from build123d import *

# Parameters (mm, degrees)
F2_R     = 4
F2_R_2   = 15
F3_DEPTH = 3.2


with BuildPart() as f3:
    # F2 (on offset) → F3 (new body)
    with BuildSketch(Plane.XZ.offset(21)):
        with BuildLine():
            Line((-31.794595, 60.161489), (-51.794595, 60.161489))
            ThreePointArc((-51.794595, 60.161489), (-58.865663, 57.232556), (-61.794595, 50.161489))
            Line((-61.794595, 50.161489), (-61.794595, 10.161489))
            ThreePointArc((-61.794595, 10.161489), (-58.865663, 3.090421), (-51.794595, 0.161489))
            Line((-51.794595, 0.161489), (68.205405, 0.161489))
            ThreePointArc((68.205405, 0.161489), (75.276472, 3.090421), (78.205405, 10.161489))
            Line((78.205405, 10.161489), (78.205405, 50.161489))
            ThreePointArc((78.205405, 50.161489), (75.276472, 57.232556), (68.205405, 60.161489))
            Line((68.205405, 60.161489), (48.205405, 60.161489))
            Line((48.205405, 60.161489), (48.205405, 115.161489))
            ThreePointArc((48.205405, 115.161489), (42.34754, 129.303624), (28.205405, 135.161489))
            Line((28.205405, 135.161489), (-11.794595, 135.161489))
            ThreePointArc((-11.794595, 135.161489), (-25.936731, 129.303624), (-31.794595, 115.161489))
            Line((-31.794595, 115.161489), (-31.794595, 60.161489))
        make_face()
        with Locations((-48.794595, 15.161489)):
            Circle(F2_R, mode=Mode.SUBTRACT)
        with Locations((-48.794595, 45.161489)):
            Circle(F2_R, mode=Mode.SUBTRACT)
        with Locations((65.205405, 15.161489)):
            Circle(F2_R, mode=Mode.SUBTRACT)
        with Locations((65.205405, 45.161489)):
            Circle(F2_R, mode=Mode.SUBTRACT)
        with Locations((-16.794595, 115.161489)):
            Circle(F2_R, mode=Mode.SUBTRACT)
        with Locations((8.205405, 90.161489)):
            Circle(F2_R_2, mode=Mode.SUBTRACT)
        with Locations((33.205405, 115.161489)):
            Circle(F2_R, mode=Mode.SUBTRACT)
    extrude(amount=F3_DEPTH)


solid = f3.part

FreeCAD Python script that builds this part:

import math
import FreeCAD as App
import Part
import Sketcher

V = App.Vector
Q = App.Units.Quantity

doc = App.newDocument("Part")
body = doc.addObject("PartDesign::Body", "Body")

# Sketch on XZ plane
sketch1 = body.newObject("Sketcher::SketchObject", "Sketch")
sketch1.AttachmentSupport = (doc.getObject("XZ_Plane"), [""])
sketch1.MapMode = "FlatFace"
sketch1.AttachmentOffset = App.Placement(V(0, 0, 21), App.Rotation())
sketch1.addGeometry(Part.LineSegment(V(-31.8, 60.2, 0), V(-51.8, 60.2, 0)), False)
sketch1.addGeometry(Part.ArcOfCircle(Part.Circle(V(-51.8, 50.2, 0), V(0, 0, 1), 10), math.radians(90), math.radians(180)), False)
sketch1.addGeometry(Part.LineSegment(V(-61.8, 50.2, 0), V(-61.8, 10.2, 0)), False)
sketch1.addGeometry(Part.ArcOfCircle(Part.Circle(V(-51.8, 10.2, 0), V(0, 0, 1), 10), math.radians(180), math.radians(270)), False)
sketch1.addGeometry(Part.LineSegment(V(-51.8, 0.2, 0), V(68.2, 0.2, 0)), False)
sketch1.addGeometry(Part.ArcOfCircle(Part.Circle(V(68.2, 10.2, 0), V(0, 0, 1), 10), math.radians(-90), math.radians(0)), False)
sketch1.addGeometry(Part.LineSegment(V(78.2, 10.2, 0), V(78.2, 50.2, 0)), False)
sketch1.addGeometry(Part.ArcOfCircle(Part.Circle(V(68.2, 50.2, 0), V(0, 0, 1), 10), math.radians(0), math.radians(90)), False)
sketch1.addGeometry(Part.LineSegment(V(68.2, 60.2, 0), V(48.2, 60.2, 0)), False)
sketch1.addGeometry(Part.LineSegment(V(48.2, 60.2, 0), V(48.2, 115.2, 0)), False)
sketch1.addGeometry(Part.ArcOfCircle(Part.Circle(V(28.2, 115.2, 0), V(0, 0, 1), 20), math.radians(0), math.radians(90)), False)
sketch1.addGeometry(Part.LineSegment(V(28.2, 135.2, 0), V(-11.8, 135.2, 0)), False)
sketch1.addGeometry(Part.ArcOfCircle(Part.Circle(V(-11.8, 115.2, 0), V(0, 0, 1), 20), math.radians(90), math.radians(180)), False)
sketch1.addGeometry(Part.LineSegment(V(-31.8, 115.2, 0), V(-31.8, 60.2, 0)), False)
sketch1.addGeometry(Part.Circle(V(-48.8, 15.2, 0), V(0, 0, 1), 4), False)
sketch1.addGeometry(Part.Circle(V(-48.8, 45.2, 0), V(0, 0, 1), 4), False)
sketch1.addGeometry(Part.Circle(V(65.2, 15.2, 0), V(0, 0, 1), 4), False)
sketch1.addGeometry(Part.Circle(V(65.2, 45.2, 0), V(0, 0, 1), 4), False)
sketch1.addGeometry(Part.Circle(V(-16.8, 115.2, 0), V(0, 0, 1), 4), False)
sketch1.addGeometry(Part.Circle(V(8.2, 90.2, 0), V(0, 0, 1), 15), False)
sketch1.addGeometry(Part.Circle(V(33.2, 115.2, 0), V(0, 0, 1), 4), False)
sketch1.addConstraint(Sketcher.Constraint("Tangent", 0, 2, 1, 1))
sketch1.addConstraint(Sketcher.Constraint("Tangent", 1, 2, 2, 1))
sketch1.addConstraint(Sketcher.Constraint("Tangent", 2, 2, 3, 1))
sketch1.addConstraint(Sketcher.Constraint("Tangent", 3, 2, 4, 1))
sketch1.addConstraint(Sketcher.Constraint("Tangent", 4, 2, 5, 1))
sketch1.addConstraint(Sketcher.Constraint("Tangent", 5, 2, 6, 1))
sketch1.addConstraint(Sketcher.Constraint("Tangent", 6, 2, 7, 1))
sketch1.addConstraint(Sketcher.Constraint("Tangent", 7, 2, 8, 1))
sketch1.addConstraint(Sketcher.Constraint("Coincident", 8, 2, 9, 1))
sketch1.addConstraint(Sketcher.Constraint("Tangent", 9, 2, 10, 1))
sketch1.addConstraint(Sketcher.Constraint("Tangent", 10, 2, 11, 1))
sketch1.addConstraint(Sketcher.Constraint("Tangent", 11, 2, 12, 1))
sketch1.addConstraint(Sketcher.Constraint("Tangent", 12, 2, 13, 1))
sketch1.addConstraint(Sketcher.Constraint("Coincident", 13, 2, 0, 1))
sketch1.addConstraint(Sketcher.Constraint("Horizontal", 0))
sketch1.addConstraint(Sketcher.Constraint("Vertical", 2))
sketch1.addConstraint(Sketcher.Constraint("Horizontal", 4))
sketch1.addConstraint(Sketcher.Constraint("Vertical", 6))
sketch1.addConstraint(Sketcher.Constraint("Horizontal", 8))
sketch1.addConstraint(Sketcher.Constraint("Vertical", 9))
sketch1.addConstraint(Sketcher.Constraint("Horizontal", 11))
sketch1.addConstraint(Sketcher.Constraint("Vertical", 13))
sketch1.addConstraint(Sketcher.Constraint("Equal", 1, 3))
sketch1.addConstraint(Sketcher.Constraint("Equal", 3, 5))
sketch1.addConstraint(Sketcher.Constraint("Equal", 5, 7))
sketch1.addConstraint(Sketcher.Constraint("Equal", 10, 12))
sketch1.addConstraint(Sketcher.Constraint("Equal", 14, 15))
sketch1.addConstraint(Sketcher.Constraint("Equal", 15, 16))
sketch1.addConstraint(Sketcher.Constraint("Equal", 16, 17))
sketch1.addConstraint(Sketcher.Constraint("Equal", 17, 18))
sketch1.addConstraint(Sketcher.Constraint("Equal", 18, 20))
sketch1.addConstraint(Sketcher.Constraint("Horizontal", 1, 3, 7, 3))
sketch1.addConstraint(Sketcher.Constraint("Horizontal", 14, 3, 16, 3))
sketch1.addConstraint(Sketcher.Constraint("Horizontal", 15, 3, 17, 3))
sketch1.addConstraint(Sketcher.Constraint("Horizontal", 12, 3, 18, 3))
sketch1.addConstraint(Sketcher.Constraint("Horizontal", 18, 3, 20, 3))
sketch1.addConstraint(Sketcher.Constraint("Vertical", 14, 3, 15, 3))
sketch1.addConstraint(Sketcher.Constraint("Vertical", 16, 3, 17, 3))
sketch1.addConstraint(Sketcher.Constraint("Equal", 0, 8))
sketch1.addConstraint(Sketcher.Constraint("Equal", 11, 2))
sketch1.addConstraint(Sketcher.Constraint("Diameter", 14, Q("8 mm")))
sketch1.addConstraint(Sketcher.Constraint("Diameter", 19, Q("30 mm")))
sketch1.addConstraint(Sketcher.Constraint("Radius", 1, Q("10.000001 mm")))
sketch1.addConstraint(Sketcher.Constraint("Radius", 12, Q("20 mm")))
sketch1.addConstraint(Sketcher.Constraint("DistanceX", 0, 2, 0, 1, Q("20 mm")))
sketch1.addConstraint(Sketcher.Constraint("DistanceX", 4, 1, 4, 2, Q("120 mm")))
sketch1.addConstraint(Sketcher.Constraint("DistanceY", 9, 1, 9, 2, Q("55 mm")))
sketch1.addConstraint(Sketcher.Constraint("DistanceX", 3, 3, 14, 3, Q("3.000001 mm")))
sketch1.addConstraint(Sketcher.Constraint("DistanceY", 3, 3, 14, 3, Q("5.000001 mm")))
sketch1.addConstraint(Sketcher.Constraint("DistanceY", 15, 3, 1, 3, Q("4.999999 mm")))
sketch1.addConstraint(Sketcher.Constraint("DistanceX", 16, 3, 5, 3, Q("2.999999 mm")))
sketch1.addConstraint(Sketcher.Constraint("DistanceX", 18, 3, 12, 3, Q("5 mm")))
sketch1.addConstraint(Sketcher.Constraint("DistanceX", 12, 3, 19, 3, Q("20 mm")))
sketch1.addConstraint(Sketcher.Constraint("DistanceY", 19, 3, 12, 3, Q("25 mm")))
sketch1.addConstraint(Sketcher.Constraint("DistanceX", 19, 3, 20, 3, Q("25 mm")))
sketch1.addConstraint(Sketcher.Constraint("DistanceY", -1, 1, 3, 3, Q("10.161488 mm")))
sketch1.addConstraint(Sketcher.Constraint("DistanceX", 1, 3, -1, 1, Q("51.794594 mm")))
pad1 = body.newObject("PartDesign::Pad", "Pad")
pad1.Profile = sketch1
pad1.Length = 3.2

doc.recompute()
